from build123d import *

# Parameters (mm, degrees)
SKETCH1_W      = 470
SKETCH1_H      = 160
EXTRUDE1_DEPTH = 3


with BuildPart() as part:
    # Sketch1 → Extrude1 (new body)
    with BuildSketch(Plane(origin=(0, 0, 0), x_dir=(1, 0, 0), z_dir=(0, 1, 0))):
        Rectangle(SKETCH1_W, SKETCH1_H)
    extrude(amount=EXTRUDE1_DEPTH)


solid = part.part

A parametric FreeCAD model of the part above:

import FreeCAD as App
import Part
import Sketcher
Q = App.Units.Quantity


def add_polygon(sketch, points):
    """Adds a closed chain of lines whose ends are joined by coincident constraints."""
    first, n = sketch.GeometryCount, len(points)
    for a, b in zip(points, points[1:] + points[:1]):
        sketch.addGeometry(Part.LineSegment(App.Vector(*a, 0), App.Vector(*b, 0)), False)
    for i in range(n):
        sketch.addConstraint(Sketcher.Constraint("Coincident", first + i, 2, first + (i + 1) % n, 1))

doc = App.newDocument("Part")
params = doc.addObject("Spreadsheet::Sheet", "Params")
for row, (alias, value) in enumerate([
    ("sketch1_width", "470 mm"),
    ("sketch1_height", "160 mm"),
    ("pad1_length", "3 mm"),
], start=1):
    params.set(f"A{row}", alias)
    params.set(f"B{row}", "=" + value)
    params.setAlias(f"B{row}", alias)

body = doc.addObject("PartDesign::Body", "Body")

# Sketch on XZ plane
sketch1 = body.newObject("Sketcher::SketchObject", "Sketch")
sketch1.AttachmentSupport = (doc.getObject("XZ_Plane"), [""])
sketch1.MapMode = "FlatFace"
add_polygon(sketch1, [(-235, -80), (-235, 80), (235, 80), (235, -80)])  # lines 0-3
sketch1.addConstraint([
    Sketcher.Constraint("Vertical", 0),
    Sketcher.Constraint("Horizontal", 1),
    Sketcher.Constraint("Vertical", 2),
    Sketcher.Constraint("Horizontal", 3),
    Sketcher.Constraint("Symmetric", 0, 2, 2, 2, -1, 1),
    Sketcher.Constraint("DistanceX", 1, 1, 1, 2, Q("470 mm")),
    Sketcher.Constraint("DistanceY", 0, 1, 0, 2, Q("160 mm")),
])
sketch1.setExpression("Constraints[9]", "Params.sketch1_width")
sketch1.setExpression("Constraints[10]", "Params.sketch1_height")
pad1 = body.newObject("PartDesign::Pad", "Pad")
pad1.Profile = sketch1
pad1.setExpression("Length", "Params.pad1_length")
pad1.Reversed = True

doc.recompute()
